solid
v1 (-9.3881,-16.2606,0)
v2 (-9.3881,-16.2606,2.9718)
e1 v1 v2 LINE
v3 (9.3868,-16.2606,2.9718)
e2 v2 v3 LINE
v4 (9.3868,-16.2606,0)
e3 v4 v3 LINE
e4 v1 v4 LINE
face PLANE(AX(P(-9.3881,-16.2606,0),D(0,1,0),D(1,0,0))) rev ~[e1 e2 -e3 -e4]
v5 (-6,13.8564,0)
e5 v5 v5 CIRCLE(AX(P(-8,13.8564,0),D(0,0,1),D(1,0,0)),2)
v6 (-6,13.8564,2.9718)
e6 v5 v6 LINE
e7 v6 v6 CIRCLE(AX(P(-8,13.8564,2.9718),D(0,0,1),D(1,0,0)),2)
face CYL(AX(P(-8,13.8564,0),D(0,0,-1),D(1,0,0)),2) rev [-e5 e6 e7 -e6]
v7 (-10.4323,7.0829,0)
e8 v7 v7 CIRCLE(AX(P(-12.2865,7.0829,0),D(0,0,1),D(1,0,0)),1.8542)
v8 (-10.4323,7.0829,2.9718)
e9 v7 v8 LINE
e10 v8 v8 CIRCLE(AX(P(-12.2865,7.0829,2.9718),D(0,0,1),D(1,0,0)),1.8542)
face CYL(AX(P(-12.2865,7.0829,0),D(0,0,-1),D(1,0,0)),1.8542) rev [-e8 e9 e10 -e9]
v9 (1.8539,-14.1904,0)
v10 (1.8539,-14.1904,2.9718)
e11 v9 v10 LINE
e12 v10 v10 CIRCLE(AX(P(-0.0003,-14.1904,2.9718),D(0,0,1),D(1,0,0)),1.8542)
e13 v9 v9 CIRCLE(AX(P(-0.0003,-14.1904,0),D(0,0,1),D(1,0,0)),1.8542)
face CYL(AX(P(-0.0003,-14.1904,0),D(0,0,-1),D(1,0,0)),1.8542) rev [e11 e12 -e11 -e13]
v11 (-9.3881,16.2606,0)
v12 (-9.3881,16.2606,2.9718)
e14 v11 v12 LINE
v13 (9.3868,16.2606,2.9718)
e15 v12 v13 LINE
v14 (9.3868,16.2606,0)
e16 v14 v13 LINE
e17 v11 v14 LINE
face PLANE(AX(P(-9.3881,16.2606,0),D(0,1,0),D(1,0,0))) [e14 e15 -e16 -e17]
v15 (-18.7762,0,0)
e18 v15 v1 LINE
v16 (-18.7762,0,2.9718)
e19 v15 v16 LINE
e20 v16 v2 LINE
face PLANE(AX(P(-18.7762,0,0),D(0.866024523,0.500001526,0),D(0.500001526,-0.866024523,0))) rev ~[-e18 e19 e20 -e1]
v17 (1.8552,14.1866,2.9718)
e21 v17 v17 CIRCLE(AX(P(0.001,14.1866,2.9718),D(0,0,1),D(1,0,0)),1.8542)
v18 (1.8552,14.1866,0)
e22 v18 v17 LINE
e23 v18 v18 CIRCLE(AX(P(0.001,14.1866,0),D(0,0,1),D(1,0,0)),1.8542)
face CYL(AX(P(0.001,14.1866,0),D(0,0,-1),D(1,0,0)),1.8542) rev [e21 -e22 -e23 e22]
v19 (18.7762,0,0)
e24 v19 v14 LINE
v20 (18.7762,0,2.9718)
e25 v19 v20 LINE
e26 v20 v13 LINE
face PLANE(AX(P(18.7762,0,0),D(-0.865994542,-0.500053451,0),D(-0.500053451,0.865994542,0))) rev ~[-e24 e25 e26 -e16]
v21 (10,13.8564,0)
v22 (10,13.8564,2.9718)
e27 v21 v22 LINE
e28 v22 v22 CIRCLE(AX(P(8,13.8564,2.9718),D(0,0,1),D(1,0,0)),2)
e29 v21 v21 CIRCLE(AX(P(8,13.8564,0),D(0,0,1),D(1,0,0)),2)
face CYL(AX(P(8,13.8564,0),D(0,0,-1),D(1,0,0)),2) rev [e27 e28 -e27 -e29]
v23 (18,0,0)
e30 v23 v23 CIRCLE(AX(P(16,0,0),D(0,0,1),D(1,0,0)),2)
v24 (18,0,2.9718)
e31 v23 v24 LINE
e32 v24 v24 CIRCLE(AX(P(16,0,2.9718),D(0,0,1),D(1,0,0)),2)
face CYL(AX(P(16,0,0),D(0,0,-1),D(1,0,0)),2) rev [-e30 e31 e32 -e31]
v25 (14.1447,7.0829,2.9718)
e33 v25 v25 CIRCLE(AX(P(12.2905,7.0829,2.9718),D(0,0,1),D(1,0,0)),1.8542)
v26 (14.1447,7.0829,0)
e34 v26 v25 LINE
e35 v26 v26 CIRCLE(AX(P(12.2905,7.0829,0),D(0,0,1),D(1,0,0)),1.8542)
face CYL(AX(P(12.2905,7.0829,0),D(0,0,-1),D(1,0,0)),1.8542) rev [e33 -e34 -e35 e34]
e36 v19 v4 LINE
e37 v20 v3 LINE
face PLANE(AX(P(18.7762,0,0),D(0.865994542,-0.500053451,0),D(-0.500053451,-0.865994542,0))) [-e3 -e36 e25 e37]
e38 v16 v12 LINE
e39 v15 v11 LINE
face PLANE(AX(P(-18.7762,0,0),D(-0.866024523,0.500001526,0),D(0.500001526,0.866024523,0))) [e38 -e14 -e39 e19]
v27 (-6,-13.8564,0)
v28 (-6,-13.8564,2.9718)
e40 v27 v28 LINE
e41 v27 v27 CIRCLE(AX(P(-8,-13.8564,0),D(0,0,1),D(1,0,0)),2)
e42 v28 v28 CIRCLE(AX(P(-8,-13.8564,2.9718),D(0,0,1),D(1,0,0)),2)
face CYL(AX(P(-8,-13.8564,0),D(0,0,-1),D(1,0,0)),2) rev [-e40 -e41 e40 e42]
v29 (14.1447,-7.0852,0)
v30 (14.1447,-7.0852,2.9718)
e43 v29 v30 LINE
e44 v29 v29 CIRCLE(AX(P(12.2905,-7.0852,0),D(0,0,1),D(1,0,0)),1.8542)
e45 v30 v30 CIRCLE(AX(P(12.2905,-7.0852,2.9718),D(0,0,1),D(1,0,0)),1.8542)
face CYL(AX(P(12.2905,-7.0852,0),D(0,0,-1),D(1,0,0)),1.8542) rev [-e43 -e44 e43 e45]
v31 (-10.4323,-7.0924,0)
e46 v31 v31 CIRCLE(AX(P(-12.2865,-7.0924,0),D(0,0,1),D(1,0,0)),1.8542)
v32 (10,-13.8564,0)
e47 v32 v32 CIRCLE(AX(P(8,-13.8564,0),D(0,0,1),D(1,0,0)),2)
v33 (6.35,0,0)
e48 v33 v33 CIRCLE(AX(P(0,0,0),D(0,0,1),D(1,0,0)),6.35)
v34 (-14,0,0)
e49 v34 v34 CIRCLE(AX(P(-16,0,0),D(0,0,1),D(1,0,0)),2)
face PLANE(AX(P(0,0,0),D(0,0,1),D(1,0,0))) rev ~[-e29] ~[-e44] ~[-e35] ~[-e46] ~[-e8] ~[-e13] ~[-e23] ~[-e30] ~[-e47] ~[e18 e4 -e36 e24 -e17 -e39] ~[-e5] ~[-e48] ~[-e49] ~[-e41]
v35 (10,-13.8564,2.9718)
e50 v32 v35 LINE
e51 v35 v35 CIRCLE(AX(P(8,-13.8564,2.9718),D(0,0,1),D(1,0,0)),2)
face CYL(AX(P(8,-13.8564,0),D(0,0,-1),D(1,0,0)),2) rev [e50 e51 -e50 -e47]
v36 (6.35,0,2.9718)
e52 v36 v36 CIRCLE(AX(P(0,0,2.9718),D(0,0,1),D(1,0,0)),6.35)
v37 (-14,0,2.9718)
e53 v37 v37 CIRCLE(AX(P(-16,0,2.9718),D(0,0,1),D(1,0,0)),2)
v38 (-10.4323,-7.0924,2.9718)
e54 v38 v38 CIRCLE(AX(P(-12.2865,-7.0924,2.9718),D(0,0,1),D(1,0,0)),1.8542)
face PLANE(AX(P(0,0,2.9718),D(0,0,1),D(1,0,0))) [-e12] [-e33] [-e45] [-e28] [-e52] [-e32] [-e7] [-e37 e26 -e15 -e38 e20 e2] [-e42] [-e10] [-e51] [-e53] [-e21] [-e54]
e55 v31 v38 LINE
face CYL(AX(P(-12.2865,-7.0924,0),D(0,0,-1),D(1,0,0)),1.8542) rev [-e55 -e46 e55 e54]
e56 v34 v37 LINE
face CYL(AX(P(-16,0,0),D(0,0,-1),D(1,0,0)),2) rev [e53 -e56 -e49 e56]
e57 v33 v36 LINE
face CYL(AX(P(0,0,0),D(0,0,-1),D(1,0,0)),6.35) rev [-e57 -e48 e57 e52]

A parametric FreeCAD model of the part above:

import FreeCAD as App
import Part
import Sketcher

V = App.Vector
Q = App.Units.Quantity

doc = App.newDocument("Part")
body = doc.addObject("PartDesign::Body", "Body")

sketch1 = body.newObject("Sketcher::SketchObject", "Sketch")
sketch1.AttachmentSupport = (doc.getObject("XY_Plane"), [""])
sketch1.MapMode = "FlatFace"
sketch1.addGeometry([
    Part.LineSegment(V(9.4, 16.3, 0), V(-9.4, 16.3, 0)),
    Part.LineSegment(V(-9.4, 16.3, 0), V(-18.8, 0, 0)),
    Part.LineSegment(V(-18.8, 0, 0), V(-9.4, -16.3, 0)),
    Part.LineSegment(V(-9.4, -16.3, 0), V(9.4, -16.3, 0)),
    Part.LineSegment(V(9.4, -16.3, 0), V(18.8, 0, 0)),
    Part.LineSegment(V(18.8, 0, 0), V(9.4, 16.3, 0)),
    Part.Circle(V(-8, -13.9, 0), V(0, 0, 1), 2),
    Part.Circle(V(0, -14.2, 0), V(0, 0, 1), 1.9),
    Part.Circle(V(-12.3, -7.1, 0), V(0, 0, 1), 1.9),
    Part.Circle(V(8, -13.9, 0), V(0, 0, 1), 2),
    Part.Circle(V(12.3, -7.1, 0), V(0, 0, 1), 1.9),
    Part.Circle(V(-16, 0, 0), V(0, 0, 1), 2),
    Part.Circle(V(-12.3, 7.1, 0), V(0, 0, 1), 1.9),
    Part.Circle(V(-8, 13.9, 0), V(0, 0, 1), 2),
    Part.Circle(V(0, 0, 0), V(0, 0, 1), 6.3),
    Part.Circle(V(16, 0, 0), V(0, 0, 1), 2),
    Part.Circle(V(12.3, 7.1, 0), V(0, 0, 1), 1.9),
    Part.Circle(V(0, 14.2, 0), V(0, 0, 1), 1.9),
    Part.Circle(V(8, 13.9, 0), V(0, 0, 1), 2),
], False)
sketch1.addConstraint([
    Sketcher.Constraint("Coincident", 0, 2, 1, 1),
    Sketcher.Constraint("Coincident", 1, 2, 2, 1),
    Sketcher.Constraint("Coincident", 2, 2, 3, 1),
    Sketcher.Constraint("Coincident", 3, 2, 4, 1),
    Sketcher.Constraint("Coincident", 4, 2, 5, 1),
    Sketcher.Constraint("Coincident", 5, 2, 0, 1),
    Sketcher.Constraint("Horizontal", 0),
    Sketcher.Constraint("Horizontal", 3),
    Sketcher.Constraint("Coincident", 14, 3, -1, 1),
    Sketcher.Constraint("Equal", 7, 8),
    Sketcher.Constraint("Equal", 6, 9),
    Sketcher.Constraint("Equal", 8, 10),
    Sketcher.Constraint("Equal", 9, 11),
    Sketcher.Constraint("Equal", 10, 12),
    Sketcher.Constraint("Equal", 11, 13),
    Sketcher.Constraint("Equal", 13, 15),
    Sketcher.Constraint("Equal", 12, 16),
    Sketcher.Constraint("Equal", 16, 17),
    Sketcher.Constraint("Equal", 15, 18),
    Sketcher.Constraint("Symmetric", 9, 3, 13, 3, -1, 1),
    Sketcher.Constraint("Symmetric", 11, 3, 15, 3, -1, 1),
    Sketcher.Constraint("Symmetric", 6, 3, 18, 3, -1, 1),
    Sketcher.Constraint("Symmetric", 1, 2, 4, 2, -1, 1),
    Sketcher.Constraint("Symmetric", 6, 3, 9, 3, -2),
    Sketcher.Constraint("Symmetric", 0, 2, 2, 2, -1),
    Sketcher.Constraint("PointOnObject", 11, 3, -1),
    Sketcher.Constraint("PointOnObject", 1, 2, -1),
    Sketcher.Constraint("Parallel", 1, 4),
    Sketcher.Constraint("Parallel", 2, 5),
    Sketcher.Constraint("Horizontal", 12, 3, 16, 3),
    Sketcher.Constraint("Vertical", 8, 3, 12, 3),
    Sketcher.Constraint("Vertical", 10, 3, 16, 3),
    Sketcher.Constraint("Diameter", 14, Q("0.5 in")),
    Sketcher.Constraint("Diameter", 7, Q("0.146 in")),
    Sketcher.Constraint("DistanceX", 7, 3, -1, 1, Q("0 in")),
    Sketcher.Constraint("Angle", 1, Q("-120 deg")),
    Sketcher.Constraint("Diameter", 6, 4.0),
    Sketcher.Constraint("DistanceX", 13, 3, 17, 3, Q("0.315 in")),
    Sketcher.Constraint("DistanceY", 13, 3, 17, 3, Q("0.013 in")),
    Sketcher.Constraint("DistanceX", 0, 2, 0, 1, 18.775),
    Sketcher.Constraint("DistanceY", 6, 3, 8, 3, Q("0.2663 in")),
    Sketcher.Constraint("DistanceX", 8, 3, 7, 3, Q("0.4837 in")),
    Sketcher.Constraint("DistanceX", 7, 3, 10, 3, Q("0.4839 in")),
    Sketcher.Constraint("DistanceX", 11, 3, 8, 3, Q("0.1462 in")),
    Sketcher.Constraint("DistanceY", 10, 3, 12, 3, Q("0.5578 in")),
    Sketcher.Constraint("DistanceX", 1, 2, 11, 3, Q("0.1093 in")),
    Sketcher.Constraint("DistanceY", 2, 2, 7, 3, Q("0.0815 in")),
    Sketcher.Constraint("DistanceX", 9, 3, 3, 2, Q("0.0546 in")),
    Sketcher.Constraint("DistanceY", 6, 3, -1, 1, 13.8564),
    Sketcher.Constraint("DistanceY", 10, 3, -1, 1, 7.0852),
])
pad1 = body.newObject("PartDesign::Pad", "Pad")
pad1.Profile = sketch1
pad1.Length = Q("0.117 in")

doc.recompute()
